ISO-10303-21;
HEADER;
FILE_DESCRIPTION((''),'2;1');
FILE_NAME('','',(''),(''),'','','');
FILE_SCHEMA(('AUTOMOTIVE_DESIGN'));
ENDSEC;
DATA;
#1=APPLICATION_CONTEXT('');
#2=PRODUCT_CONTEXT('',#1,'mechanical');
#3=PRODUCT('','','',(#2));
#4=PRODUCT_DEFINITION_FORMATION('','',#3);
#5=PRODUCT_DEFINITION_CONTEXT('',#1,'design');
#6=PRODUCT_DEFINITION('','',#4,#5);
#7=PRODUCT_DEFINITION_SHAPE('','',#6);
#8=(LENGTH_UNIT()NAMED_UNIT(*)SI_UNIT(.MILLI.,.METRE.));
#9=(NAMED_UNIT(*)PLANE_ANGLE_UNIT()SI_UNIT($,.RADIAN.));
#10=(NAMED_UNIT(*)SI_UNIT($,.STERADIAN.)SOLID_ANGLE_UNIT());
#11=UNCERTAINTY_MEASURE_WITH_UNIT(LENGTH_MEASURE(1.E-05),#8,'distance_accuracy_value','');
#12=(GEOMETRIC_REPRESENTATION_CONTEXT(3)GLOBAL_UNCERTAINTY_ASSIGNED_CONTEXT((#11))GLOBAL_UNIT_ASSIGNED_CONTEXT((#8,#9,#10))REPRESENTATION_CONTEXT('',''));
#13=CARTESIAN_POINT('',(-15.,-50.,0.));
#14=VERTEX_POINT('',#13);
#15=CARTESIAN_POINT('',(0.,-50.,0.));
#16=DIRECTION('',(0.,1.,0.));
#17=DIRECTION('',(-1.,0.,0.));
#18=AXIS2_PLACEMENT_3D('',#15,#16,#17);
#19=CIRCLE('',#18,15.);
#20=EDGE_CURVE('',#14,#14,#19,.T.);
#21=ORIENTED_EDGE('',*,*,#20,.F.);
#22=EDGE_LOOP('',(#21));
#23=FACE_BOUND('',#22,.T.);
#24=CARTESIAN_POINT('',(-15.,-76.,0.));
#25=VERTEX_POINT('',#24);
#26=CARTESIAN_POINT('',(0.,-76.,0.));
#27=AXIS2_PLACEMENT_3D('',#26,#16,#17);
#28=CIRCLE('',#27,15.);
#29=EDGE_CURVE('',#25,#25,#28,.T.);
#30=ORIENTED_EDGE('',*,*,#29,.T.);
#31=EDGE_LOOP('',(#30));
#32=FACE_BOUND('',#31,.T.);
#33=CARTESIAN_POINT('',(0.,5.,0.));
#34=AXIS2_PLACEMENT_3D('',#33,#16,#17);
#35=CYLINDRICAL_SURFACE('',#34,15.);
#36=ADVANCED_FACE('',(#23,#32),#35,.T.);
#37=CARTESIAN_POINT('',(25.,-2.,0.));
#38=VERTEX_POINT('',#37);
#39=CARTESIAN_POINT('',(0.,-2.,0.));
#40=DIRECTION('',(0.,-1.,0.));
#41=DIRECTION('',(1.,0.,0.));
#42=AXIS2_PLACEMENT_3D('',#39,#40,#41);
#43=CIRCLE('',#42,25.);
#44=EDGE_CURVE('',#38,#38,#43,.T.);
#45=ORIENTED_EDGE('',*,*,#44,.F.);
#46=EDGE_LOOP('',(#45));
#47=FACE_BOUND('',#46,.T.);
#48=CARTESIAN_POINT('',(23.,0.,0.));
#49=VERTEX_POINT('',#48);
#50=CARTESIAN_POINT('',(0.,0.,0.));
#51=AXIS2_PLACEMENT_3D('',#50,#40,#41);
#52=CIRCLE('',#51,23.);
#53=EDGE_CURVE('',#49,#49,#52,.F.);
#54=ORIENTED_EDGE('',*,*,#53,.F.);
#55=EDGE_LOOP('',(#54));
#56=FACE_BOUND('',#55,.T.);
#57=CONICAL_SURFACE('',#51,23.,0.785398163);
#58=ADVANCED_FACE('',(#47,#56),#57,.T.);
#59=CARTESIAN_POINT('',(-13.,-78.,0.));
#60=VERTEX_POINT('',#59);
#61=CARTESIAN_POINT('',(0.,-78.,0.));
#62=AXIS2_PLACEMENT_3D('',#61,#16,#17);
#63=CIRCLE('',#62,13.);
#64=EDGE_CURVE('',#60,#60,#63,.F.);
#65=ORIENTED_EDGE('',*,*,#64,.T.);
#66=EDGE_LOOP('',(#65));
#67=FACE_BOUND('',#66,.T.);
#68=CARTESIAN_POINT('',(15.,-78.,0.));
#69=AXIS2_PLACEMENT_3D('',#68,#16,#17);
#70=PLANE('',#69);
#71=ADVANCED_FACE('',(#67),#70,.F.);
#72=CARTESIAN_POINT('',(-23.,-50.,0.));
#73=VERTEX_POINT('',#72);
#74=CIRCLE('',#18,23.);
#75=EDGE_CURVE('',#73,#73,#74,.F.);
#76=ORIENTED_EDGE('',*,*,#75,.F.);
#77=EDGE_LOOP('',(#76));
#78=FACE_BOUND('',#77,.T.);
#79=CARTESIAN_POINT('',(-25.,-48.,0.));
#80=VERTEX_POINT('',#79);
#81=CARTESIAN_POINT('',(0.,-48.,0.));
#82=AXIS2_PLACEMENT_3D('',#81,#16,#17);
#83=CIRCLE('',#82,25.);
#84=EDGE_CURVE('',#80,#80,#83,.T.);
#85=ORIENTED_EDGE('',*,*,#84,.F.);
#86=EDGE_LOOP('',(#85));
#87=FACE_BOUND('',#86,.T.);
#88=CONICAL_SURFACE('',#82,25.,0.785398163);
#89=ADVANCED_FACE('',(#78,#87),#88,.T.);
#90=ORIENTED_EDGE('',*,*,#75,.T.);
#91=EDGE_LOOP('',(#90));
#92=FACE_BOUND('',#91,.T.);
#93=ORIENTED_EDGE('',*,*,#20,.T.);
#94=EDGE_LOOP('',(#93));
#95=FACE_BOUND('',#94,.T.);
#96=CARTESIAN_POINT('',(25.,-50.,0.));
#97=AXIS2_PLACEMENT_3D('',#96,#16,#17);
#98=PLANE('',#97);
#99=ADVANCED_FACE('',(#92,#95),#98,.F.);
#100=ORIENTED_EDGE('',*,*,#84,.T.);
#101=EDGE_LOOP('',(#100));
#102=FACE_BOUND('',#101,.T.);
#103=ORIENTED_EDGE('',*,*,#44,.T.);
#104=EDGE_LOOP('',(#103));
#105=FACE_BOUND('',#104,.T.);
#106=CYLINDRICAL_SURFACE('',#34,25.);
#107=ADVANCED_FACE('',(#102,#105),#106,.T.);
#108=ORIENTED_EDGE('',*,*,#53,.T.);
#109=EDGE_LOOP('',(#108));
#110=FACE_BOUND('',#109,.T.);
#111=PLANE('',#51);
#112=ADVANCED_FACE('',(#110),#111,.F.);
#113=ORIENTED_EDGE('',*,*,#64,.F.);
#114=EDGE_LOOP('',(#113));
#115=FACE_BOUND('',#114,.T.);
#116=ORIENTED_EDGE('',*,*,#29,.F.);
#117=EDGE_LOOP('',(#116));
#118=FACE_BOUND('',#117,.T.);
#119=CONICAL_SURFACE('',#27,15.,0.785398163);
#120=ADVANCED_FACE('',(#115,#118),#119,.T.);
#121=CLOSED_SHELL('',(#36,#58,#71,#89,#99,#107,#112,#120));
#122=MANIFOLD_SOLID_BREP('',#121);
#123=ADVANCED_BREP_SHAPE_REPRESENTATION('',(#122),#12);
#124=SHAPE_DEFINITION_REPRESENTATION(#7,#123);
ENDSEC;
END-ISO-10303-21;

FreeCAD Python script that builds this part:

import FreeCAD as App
import Part
import Sketcher
Q = App.Units.Quantity


def edges_at(feature, points):
    """Names of the edges that pass closest to the given points."""
    edges = feature.Shape.Edges
    near = lambda p: min(range(len(edges)), key=lambda i: edges[i].distToShape(Part.Vertex(*p))[0])
    return sorted({f"Edge{near(p) + 1}" for p in points})

doc = App.newDocument("Part")
body = doc.addObject("PartDesign::Body", "Body")

# Sketch on XY plane
sketch1 = body.newObject("Sketcher::SketchObject", "Sketch")
sketch1.AttachmentSupport = (doc.getObject("XY_Plane"), [""])
sketch1.MapMode = "FlatFace"
sketch1.addGeometry([
    Part.LineSegment(App.Vector(25, 0, 0), App.Vector(0, 0, 0)),  # 0
    Part.LineSegment(App.Vector(0, 0, 0), App.Vector(0, -78, 0)),  # 1
    Part.LineSegment(App.Vector(0, -78, 0), App.Vector(15, -78, 0)),  # 2
    Part.LineSegment(App.Vector(15, -78, 0), App.Vector(15, -50, 0)),  # 3
    Part.LineSegment(App.Vector(15, -50, 0), App.Vector(25, -50, 0)),  # 4
    Part.LineSegment(App.Vector(25, -50, 0), App.Vector(25, 0, 0)),  # 5
], False)
sketch1.addConstraint([
    Sketcher.Constraint("Coincident", 0, 2, 1, 1),
    Sketcher.Constraint("Coincident", 1, 2, 2, 1),
    Sketcher.Constraint("Coincident", 2, 2, 3, 1),
    Sketcher.Constraint("Coincident", 3, 2, 4, 1),
    Sketcher.Constraint("Coincident", 4, 2, 5, 1),
    Sketcher.Constraint("Coincident", 5, 2, 0, 1),
    Sketcher.Constraint("Horizontal", 0),
    Sketcher.Constraint("Vertical", 1),
    Sketcher.Constraint("Horizontal", 2),
    Sketcher.Constraint("Vertical", 3),
    Sketcher.Constraint("Horizontal", 4),
    Sketcher.Constraint("Vertical", 5),
    Sketcher.Constraint("Coincident", 0, 2, -1, 1),
    Sketcher.Constraint("DistanceX", 0, 2, 0, 1, Q("25 mm")),
    Sketcher.Constraint("DistanceX", 2, 1, 2, 2, Q("15 mm")),
    Sketcher.Constraint("DistanceY", 1, 2, 1, 1, Q("78 mm")),
    Sketcher.Constraint("DistanceY", 3, 1, 3, 2, Q("28 mm")),
])
revolution = body.newObject("PartDesign::Revolution", "Revolution")
revolution.Profile = sketch1
revolution.ReferenceAxis = (sketch1, ["V_Axis"])
revolution.Angle = 360
doc.recompute()

chamfer = body.newObject("PartDesign::Chamfer", "Chamfer")
chamfer.Base = (revolution, edges_at(revolution, [(15, -78, 0), (25, -50, 0), (25, 0, 0)]))
chamfer.Size = 2

doc.recompute()
